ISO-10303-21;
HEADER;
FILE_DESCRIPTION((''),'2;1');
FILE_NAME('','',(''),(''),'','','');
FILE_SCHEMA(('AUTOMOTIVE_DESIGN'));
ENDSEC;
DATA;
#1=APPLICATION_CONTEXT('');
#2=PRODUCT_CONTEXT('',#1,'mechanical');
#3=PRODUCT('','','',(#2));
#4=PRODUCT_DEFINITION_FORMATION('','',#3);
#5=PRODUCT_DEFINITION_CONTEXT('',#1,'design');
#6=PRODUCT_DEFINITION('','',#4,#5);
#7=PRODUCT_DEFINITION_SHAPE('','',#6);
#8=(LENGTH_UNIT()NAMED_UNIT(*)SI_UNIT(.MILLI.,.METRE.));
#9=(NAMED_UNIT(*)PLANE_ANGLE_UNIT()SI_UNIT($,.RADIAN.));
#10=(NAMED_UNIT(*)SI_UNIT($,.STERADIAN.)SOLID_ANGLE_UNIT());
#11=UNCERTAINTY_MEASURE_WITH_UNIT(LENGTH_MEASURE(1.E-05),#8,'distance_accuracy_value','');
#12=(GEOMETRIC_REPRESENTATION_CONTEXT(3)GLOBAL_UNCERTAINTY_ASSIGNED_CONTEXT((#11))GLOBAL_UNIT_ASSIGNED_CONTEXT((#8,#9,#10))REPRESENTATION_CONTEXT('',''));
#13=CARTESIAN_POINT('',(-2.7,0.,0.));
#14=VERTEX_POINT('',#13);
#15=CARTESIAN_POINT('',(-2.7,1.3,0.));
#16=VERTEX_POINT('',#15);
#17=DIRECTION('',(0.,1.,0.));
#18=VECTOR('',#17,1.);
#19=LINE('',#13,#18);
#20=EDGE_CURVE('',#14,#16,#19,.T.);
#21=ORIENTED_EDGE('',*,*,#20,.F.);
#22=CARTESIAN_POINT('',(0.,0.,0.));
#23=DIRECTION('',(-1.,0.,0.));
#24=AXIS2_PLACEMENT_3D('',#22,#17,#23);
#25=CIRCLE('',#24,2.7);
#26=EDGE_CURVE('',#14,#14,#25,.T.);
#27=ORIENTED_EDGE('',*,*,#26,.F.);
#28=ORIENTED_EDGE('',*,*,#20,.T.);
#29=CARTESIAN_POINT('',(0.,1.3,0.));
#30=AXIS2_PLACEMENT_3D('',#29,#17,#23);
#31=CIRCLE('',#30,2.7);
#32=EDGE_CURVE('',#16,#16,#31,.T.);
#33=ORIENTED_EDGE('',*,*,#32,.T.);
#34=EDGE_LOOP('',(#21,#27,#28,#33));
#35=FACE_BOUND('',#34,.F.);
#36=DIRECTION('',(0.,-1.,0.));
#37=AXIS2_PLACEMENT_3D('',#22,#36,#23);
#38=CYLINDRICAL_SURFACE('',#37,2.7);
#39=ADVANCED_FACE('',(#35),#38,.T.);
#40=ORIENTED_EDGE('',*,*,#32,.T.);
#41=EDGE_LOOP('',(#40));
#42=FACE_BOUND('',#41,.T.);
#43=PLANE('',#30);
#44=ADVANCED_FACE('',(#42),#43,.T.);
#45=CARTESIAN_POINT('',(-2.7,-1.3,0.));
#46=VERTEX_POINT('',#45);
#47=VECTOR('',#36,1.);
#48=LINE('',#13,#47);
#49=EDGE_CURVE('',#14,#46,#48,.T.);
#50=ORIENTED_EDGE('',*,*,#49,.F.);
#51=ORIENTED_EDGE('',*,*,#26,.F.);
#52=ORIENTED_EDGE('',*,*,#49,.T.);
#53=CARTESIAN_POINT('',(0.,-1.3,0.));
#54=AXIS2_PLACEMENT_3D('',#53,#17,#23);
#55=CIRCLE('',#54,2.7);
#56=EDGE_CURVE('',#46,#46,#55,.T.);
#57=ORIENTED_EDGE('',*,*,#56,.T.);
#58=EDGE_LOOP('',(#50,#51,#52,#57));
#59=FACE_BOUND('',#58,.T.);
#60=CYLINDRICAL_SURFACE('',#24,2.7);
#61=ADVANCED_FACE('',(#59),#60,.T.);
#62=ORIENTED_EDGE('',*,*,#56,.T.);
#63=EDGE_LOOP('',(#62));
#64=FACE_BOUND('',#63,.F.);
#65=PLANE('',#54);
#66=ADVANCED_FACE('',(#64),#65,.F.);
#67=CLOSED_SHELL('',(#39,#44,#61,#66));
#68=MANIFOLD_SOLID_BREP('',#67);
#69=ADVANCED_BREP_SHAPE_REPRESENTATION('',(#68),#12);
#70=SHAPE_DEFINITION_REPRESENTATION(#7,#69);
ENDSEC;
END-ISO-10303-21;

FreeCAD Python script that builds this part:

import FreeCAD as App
import Part
import Sketcher
from FreeCAD import Vector
Q = App.Units.Quantity

doc = App.newDocument("Part")
body = doc.addObject("PartDesign::Body", "Body")

# Sketch on XZ plane
sketch1 = body.newObject("Sketcher::SketchObject", "Sketch")
sketch1.AttachmentSupport = (doc.getObject("XZ_Plane"), [""])
sketch1.MapMode = "FlatFace"
sketch1.addGeometry(Part.Circle(Vector(0, 0, 0), Vector(0, 0, 1), 2.7), False)
sketch1.addConstraint([
    Sketcher.Constraint("Coincident", 0, 3, -1, 1),
    Sketcher.Constraint("Diameter", 0, Q("5.4 mm")),
])
pad1 = body.newObject("PartDesign::Pad", "Pad")
pad1.Profile = sketch1
pad1.Length = 2.6
pad1.Midplane = True

doc.recompute()
